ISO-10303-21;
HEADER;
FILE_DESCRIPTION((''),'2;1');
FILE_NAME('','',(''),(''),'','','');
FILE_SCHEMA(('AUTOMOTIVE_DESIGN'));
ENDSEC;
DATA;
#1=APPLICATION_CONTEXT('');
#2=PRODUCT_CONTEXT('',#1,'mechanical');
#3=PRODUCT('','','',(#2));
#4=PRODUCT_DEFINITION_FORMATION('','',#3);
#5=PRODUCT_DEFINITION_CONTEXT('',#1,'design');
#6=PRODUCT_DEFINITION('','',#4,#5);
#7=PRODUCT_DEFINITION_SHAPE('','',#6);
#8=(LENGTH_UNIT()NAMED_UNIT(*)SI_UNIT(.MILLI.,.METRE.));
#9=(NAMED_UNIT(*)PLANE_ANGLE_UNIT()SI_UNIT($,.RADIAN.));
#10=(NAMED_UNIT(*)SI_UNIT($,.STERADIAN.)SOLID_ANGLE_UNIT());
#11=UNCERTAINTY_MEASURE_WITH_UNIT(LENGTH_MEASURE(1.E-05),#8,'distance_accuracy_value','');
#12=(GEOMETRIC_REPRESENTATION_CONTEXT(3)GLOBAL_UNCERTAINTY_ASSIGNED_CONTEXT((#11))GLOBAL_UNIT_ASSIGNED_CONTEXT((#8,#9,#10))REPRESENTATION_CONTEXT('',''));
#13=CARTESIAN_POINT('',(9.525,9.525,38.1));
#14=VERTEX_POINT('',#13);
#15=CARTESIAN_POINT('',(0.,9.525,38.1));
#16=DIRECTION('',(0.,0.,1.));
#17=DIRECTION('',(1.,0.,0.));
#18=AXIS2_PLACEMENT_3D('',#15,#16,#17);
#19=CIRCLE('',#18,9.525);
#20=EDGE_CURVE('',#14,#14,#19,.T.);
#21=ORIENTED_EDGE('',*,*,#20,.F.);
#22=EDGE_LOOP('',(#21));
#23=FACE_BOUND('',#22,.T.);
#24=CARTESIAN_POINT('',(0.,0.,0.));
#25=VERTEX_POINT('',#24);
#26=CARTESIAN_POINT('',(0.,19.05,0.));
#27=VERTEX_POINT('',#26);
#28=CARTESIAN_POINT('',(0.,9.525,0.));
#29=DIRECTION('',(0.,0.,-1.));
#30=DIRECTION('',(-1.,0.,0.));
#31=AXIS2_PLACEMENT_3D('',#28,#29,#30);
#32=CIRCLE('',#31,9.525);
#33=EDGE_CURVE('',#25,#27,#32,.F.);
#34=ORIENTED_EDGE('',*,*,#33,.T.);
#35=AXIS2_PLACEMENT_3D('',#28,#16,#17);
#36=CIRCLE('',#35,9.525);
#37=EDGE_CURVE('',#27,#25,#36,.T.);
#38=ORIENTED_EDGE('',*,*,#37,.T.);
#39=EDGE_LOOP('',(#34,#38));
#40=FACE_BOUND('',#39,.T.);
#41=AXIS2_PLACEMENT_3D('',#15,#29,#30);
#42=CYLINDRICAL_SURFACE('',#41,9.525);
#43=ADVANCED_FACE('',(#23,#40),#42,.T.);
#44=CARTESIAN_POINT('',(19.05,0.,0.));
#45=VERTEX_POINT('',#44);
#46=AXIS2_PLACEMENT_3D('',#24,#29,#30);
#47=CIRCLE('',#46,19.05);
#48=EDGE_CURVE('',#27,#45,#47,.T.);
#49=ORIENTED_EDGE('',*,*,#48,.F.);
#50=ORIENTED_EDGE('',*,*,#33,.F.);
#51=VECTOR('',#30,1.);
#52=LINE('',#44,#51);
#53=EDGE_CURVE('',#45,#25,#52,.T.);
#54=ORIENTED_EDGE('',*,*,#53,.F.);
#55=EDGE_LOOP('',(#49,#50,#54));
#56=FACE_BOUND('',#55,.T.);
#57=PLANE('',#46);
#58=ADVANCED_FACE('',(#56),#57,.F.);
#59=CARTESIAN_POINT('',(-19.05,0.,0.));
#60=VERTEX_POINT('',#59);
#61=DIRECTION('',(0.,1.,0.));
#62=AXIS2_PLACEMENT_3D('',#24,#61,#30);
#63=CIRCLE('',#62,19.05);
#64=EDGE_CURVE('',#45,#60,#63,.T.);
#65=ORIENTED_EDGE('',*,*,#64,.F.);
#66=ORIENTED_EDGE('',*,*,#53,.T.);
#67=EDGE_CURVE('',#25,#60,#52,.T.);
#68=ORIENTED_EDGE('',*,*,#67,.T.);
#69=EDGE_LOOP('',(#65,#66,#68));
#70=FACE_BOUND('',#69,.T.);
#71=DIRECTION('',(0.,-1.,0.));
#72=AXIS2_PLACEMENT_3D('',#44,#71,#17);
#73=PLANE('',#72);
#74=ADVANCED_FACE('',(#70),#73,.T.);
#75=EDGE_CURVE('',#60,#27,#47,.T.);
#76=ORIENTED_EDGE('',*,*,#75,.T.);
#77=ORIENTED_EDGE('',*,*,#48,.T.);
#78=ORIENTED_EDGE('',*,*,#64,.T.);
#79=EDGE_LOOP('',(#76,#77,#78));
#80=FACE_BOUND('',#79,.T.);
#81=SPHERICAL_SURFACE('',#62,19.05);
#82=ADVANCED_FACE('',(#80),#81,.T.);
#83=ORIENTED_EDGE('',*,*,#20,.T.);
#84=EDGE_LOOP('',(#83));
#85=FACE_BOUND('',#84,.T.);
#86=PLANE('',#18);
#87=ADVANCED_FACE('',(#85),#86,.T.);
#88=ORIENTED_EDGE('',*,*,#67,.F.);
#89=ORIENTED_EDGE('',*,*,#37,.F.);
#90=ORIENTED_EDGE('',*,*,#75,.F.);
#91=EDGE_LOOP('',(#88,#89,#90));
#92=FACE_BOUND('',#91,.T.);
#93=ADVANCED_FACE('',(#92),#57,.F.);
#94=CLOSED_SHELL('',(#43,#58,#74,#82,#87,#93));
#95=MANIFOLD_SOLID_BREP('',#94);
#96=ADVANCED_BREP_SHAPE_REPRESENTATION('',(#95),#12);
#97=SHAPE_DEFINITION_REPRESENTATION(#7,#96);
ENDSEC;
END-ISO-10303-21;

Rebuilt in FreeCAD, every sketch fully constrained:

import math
import FreeCAD as App
import Part
import Sketcher
from FreeCAD import Vector
Q = App.Units.Quantity

doc = App.newDocument("Part")
body = doc.addObject("PartDesign::Body", "Body")

sketch1 = body.newObject("Sketcher::SketchObject", "Sketch")
sketch1.AttachmentSupport = (doc.getObject("XY_Plane"), [""])
sketch1.MapMode = "FlatFace"
sketch1.addGeometry(Part.LineSegment(Vector(-19, 0, 0), Vector(0, 0, 0)), False)
sketch1.addGeometry(Part.LineSegment(Vector(0, 0, 0), Vector(0, 19, 0)), False)
sketch1.addGeometry(Part.ArcOfCircle(Part.Circle(Vector(0, 0, 0), Vector(0, 0, 1), 19), math.radians(90), math.radians(180)), False)
sketch1.addConstraint(Sketcher.Constraint("Coincident", 0, 2, 1, 1))
sketch1.addConstraint(Sketcher.Constraint("Coincident", 1, 2, 2, 1))
sketch1.addConstraint(Sketcher.Constraint("Coincident", 2, 2, 0, 1))
sketch1.addConstraint(Sketcher.Constraint("Horizontal", 0))
sketch1.addConstraint(Sketcher.Constraint("Vertical", 1))
sketch1.addConstraint(Sketcher.Constraint("Coincident", 2, 3, -1, 1))
sketch1.addConstraint(Sketcher.Constraint("Coincident", 0, 2, -1, 1))
sketch1.addConstraint(Sketcher.Constraint("Radius", 2, Q("0.75 in")))
revolution = body.newObject("PartDesign::Revolution", "Revolution")
revolution.Profile = sketch1
revolution.ReferenceAxis = (sketch1, ["V_Axis"])
revolution.Angle = 180
revolution.Reversed = True

sketch2 = body.newObject("Sketcher::SketchObject", "Sketch001")
sketch2.AttachmentSupport = (doc.getObject("XY_Plane"), [""])
sketch2.MapMode = "FlatFace"
sketch2.addGeometry(Part.Circle(Vector(0, 10, 0), Vector(0, 0, 1), 10), False)
sketch2.addConstraint(Sketcher.Constraint("PointOnObject", 0, 3, -2))
sketch2.addConstraint(Sketcher.Constraint("Diameter", 0, Q("0.75 in")))
sketch2.addConstraint(Sketcher.Constraint("DistanceY", -1, 1, 0, 3, Q("0.375 in")))
pad1 = body.newObject("PartDesign::Pad", "Pad")
pad1.Profile = sketch2
pad1.Length = Q("1.5 in")

doc.recompute()
